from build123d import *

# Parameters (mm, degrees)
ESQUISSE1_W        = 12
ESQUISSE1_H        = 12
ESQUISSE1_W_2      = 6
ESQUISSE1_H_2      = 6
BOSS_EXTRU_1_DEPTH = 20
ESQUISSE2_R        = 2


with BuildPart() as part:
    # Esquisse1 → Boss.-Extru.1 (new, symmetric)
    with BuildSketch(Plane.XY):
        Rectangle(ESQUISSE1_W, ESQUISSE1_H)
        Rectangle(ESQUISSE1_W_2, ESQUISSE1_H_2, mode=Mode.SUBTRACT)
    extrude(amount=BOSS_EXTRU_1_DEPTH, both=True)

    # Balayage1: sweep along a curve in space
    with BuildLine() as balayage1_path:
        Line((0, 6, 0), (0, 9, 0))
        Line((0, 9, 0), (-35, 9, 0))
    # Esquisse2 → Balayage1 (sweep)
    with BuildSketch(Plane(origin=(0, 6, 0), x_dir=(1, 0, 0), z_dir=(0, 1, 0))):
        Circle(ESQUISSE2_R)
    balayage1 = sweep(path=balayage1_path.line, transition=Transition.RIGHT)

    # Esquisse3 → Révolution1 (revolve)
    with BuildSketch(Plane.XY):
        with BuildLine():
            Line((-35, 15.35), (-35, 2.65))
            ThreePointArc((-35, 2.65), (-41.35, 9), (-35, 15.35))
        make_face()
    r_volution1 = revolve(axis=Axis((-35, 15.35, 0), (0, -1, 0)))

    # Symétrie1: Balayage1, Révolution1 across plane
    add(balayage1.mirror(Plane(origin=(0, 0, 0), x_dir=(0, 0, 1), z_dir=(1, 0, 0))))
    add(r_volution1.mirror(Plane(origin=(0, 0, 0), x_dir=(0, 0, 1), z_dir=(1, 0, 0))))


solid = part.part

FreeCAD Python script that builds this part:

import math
import FreeCAD as App
import Part
import Sketcher

V = App.Vector


def add_polygon(sketch, points):
    """Adds a closed chain of lines whose ends are joined by coincident constraints."""
    first, n = sketch.GeometryCount, len(points)
    for a, b in zip(points, points[1:] + points[:1]):
        sketch.addGeometry(Part.LineSegment(App.Vector(*a, 0), App.Vector(*b, 0)), False)
    for i in range(n):
        sketch.addConstraint(Sketcher.Constraint("Coincident", first + i, 2, first + (i + 1) % n, 1))

doc = App.newDocument("Part")
body = doc.addObject("PartDesign::Body", "Body")

# Sketch on XY plane
sketch1 = doc.addObject("Sketcher::SketchObject", "Sketch")
body.addObject(sketch1)
sketch1.AttachmentSupport = (doc.XY_Plane, [""])
sketch1.MapMode = "FlatFace"
add_polygon(sketch1, [(-6, 6), (-6, -6), (6, -6), (6, 6)])  # lines 0-3
add_polygon(sketch1, [(3, -3), (-3, -3), (-3, 3), (3, 3)])  # lines 4-7
sketch1.addConstraint([
    Sketcher.Constraint("Vertical", 0),
    Sketcher.Constraint("Horizontal", 1),
    Sketcher.Constraint("Vertical", 2),
    Sketcher.Constraint("Horizontal", 3),
    Sketcher.Constraint("Horizontal", 4),
    Sketcher.Constraint("Vertical", 5),
    Sketcher.Constraint("Horizontal", 6),
    Sketcher.Constraint("Vertical", 7),
    Sketcher.Constraint("Symmetric", 0, 2, 2, 2, -1, 1),
    Sketcher.Constraint("Symmetric", 4, 2, 6, 2, -1, 1),
    Sketcher.Constraint("Equal", 3, 0),
    Sketcher.Constraint("Equal", 6, 5),
    Sketcher.Constraint("DistanceX", 1, 1, 1, 2, 12.0),
    Sketcher.Constraint("DistanceX", 4, 2, 4, 1, 6.0),
])
pad1 = doc.addObject("PartDesign::Pad", "Pad")
body.addObject(pad1)
pad1.Profile = sketch1
pad1.Length = 40
pad1.Midplane = True

# Sketch on XZ plane
sketch2 = doc.addObject("Sketcher::SketchObject", "Sketch001")
body.addObject(sketch2)
sketch2.AttachmentSupport = (doc.XZ_Plane, [""])
sketch2.MapMode = "FlatFace"
sketch2.AttachmentOffset = App.Placement(V(0, 0, -6), App.Rotation())
sketch2.addGeometry(Part.Circle(V(0, 0, 0), V(0, 0, 1), 2), False)
sketch2.addConstraint([
    Sketcher.Constraint("Coincident", 0, 3, -1, 1),
    Sketcher.Constraint("Diameter", 0, 4.0),
])

# Sketch on XY plane
sketch3 = doc.addObject("Sketcher::SketchObject", "Sketch002")
body.addObject(sketch3)
sketch3.AttachmentSupport = (doc.XY_Plane, [""])
sketch3.MapMode = "FlatFace"
sketch3.addGeometry([
    Part.LineSegment(V(0, 6, 0), V(0, 9, 0)),
    Part.LineSegment(V(0, 9, 0), V(-35, 9, 0)),
], False)
sketch3.addConstraint([
    Sketcher.Constraint("Coincident", 0, 2, 1, 1),
    Sketcher.Constraint("Vertical", 0),
    Sketcher.Constraint("Horizontal", 1),
    Sketcher.Constraint("PointOnObject", 0, 1, -2),
    Sketcher.Constraint("DistanceX", 1, 2, 1, 1, 35.0),
    Sketcher.Constraint("DistanceY", 0, 1, 0, 2, 3.0),
    Sketcher.Constraint("DistanceY", -1, 1, 0, 1, 6.0),
])
doc.recompute()

additivepipe = doc.addObject("PartDesign::AdditivePipe", "AdditivePipe")
body.addObject(additivepipe)
additivepipe.Profile = sketch2
additivepipe.Spine = (sketch3, ["Edge1", "Edge2"])
additivepipe.Transition = "Right corner"

# Sketch on XY plane
sketch4 = doc.addObject("Sketcher::SketchObject", "Sketch003")
body.addObject(sketch4)
sketch4.AttachmentSupport = (doc.XY_Plane, [""])
sketch4.MapMode = "FlatFace"
sketch4.addGeometry([
    Part.LineSegment(V(-35, 3, 0), V(-35, 15, 0)),
    Part.ArcOfCircle(Part.Circle(V(-35, 9, 0), V(0, 0, 1), 6), math.radians(90), math.radians(270)),
], False)
sketch4.addGeometry(Part.LineSegment(V(-35, 15, 0), V(-35, 3, 0)), True)  # axis
sketch4.addConstraint([
    Sketcher.Constraint("Coincident", 0, 1, 1, 2),
    Sketcher.Constraint("Coincident", 1, 1, 0, 2),
    Sketcher.Constraint("Vertical", 0),
    Sketcher.Constraint("Vertical", 2),
    Sketcher.Constraint("Coincident", 2, 1, 1, 1),
    Sketcher.Constraint("Vertical", 1, 3, 0, 1),
    Sketcher.Constraint("Equal", 0, 2),
    Sketcher.Constraint("Radius", 1, 6.35),
    Sketcher.Constraint("DistanceX", 1, 3, -1, 1, 35.0),
    Sketcher.Constraint("DistanceY", -1, 1, 1, 3, 9.0),
])
revolution = doc.addObject("PartDesign::Revolution", "Revolution")
body.addObject(revolution)
revolution.Profile = sketch4
revolution.ReferenceAxis = (sketch4, ["Axis0"])
revolution.Angle = 360
doc.recompute()

mirrored = doc.addObject("PartDesign::Mirrored", "Mirrored")
body.addObject(mirrored)
mirrored.Originals = [additivepipe, revolution]
mirrored.MirrorPlane = (doc.YZ_Plane, [""])
body.Tip = mirrored

doc.recompute()
